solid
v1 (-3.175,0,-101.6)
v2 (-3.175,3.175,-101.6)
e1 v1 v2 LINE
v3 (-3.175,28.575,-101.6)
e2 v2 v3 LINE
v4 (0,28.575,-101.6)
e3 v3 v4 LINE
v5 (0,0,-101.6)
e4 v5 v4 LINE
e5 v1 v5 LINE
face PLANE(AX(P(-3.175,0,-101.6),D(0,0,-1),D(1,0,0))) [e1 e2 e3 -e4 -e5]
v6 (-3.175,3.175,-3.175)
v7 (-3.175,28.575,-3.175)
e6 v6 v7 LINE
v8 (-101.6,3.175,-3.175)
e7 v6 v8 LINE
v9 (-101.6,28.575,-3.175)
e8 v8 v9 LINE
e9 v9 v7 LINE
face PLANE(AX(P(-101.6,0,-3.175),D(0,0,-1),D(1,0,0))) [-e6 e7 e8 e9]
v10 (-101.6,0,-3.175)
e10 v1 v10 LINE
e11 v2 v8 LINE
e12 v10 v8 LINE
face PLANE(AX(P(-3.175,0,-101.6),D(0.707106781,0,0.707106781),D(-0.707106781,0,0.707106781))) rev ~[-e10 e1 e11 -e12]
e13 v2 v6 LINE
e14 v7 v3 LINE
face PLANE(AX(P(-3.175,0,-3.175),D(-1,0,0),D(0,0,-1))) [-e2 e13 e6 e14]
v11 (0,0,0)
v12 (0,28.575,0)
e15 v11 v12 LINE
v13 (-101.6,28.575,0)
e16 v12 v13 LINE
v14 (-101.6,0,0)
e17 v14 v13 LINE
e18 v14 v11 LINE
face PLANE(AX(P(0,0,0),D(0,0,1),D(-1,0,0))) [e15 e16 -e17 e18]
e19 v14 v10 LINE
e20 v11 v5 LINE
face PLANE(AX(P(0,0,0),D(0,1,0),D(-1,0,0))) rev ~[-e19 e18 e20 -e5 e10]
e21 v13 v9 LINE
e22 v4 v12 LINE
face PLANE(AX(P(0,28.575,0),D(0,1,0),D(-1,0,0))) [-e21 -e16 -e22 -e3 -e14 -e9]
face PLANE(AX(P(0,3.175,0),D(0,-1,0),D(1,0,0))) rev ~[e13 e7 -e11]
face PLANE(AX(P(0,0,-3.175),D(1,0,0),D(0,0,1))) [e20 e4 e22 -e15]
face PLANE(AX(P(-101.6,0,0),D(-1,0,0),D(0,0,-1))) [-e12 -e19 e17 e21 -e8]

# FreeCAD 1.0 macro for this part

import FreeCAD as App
import Part
import Sketcher
Q = App.Units.Quantity


def add_polygon(sketch, points):
    """Adds a closed chain of lines whose ends are joined by coincident constraints."""
    first, n = sketch.GeometryCount, len(points)
    for a, b in zip(points, points[1:] + points[:1]):
        sketch.addGeometry(Part.LineSegment(App.Vector(*a, 0), App.Vector(*b, 0)), False)
    for i in range(n):
        sketch.addConstraint(Sketcher.Constraint("Coincident", first + i, 2, first + (i + 1) % n, 1))

doc = App.newDocument("Part")
params = doc.addObject("Spreadsheet::Sheet", "Params")
for row, (alias, value) in enumerate([
    ("sketch1_width", "4 in"),
    ("sketch1_width2", "0.125 in"),
    ("pad1_length", "1.125 in"),
    ("sketch2_width", "3.875 in"),
    ("pad2_length", "0.125 in"),
], start=1):
    params.set(f"A{row}", alias)
    params.set(f"B{row}", "=" + value)
    params.setAlias(f"B{row}", alias)

body = doc.addObject("PartDesign::Body", "Body")

# Sketch on XZ plane
sketch1 = body.newObject("Sketcher::SketchObject", "Sketch")
sketch1.AttachmentSupport = (doc.getObject("XZ_Plane"), [""])
sketch1.MapMode = "FlatFace"
add_polygon(sketch1, [(-101.6, 0), (0, 0), (0, -101.6), (-3.2, -101.6), (-3.2, -3.2), (-101.6, -3.2)])  # lines 0-5
sketch1.addConstraint([
    Sketcher.Constraint("Horizontal", 0),
    Sketcher.Constraint("Vertical", 1),
    Sketcher.Constraint("Horizontal", 2),
    Sketcher.Constraint("Vertical", 3),
    Sketcher.Constraint("Horizontal", 4),
    Sketcher.Constraint("Vertical", 5),
    Sketcher.Constraint("Coincident", 0, 2, -1, 1),
    Sketcher.Constraint("Equal", 0, 1),
    Sketcher.Constraint("Equal", 4, 3),
    Sketcher.Constraint("DistanceX", 0, 1, 0, 2, Q("4 in")),
    Sketcher.Constraint("DistanceX", 2, 2, 2, 1, Q("0.125 in")),
])
sketch1.setExpression("Constraints[15]", "Params.sketch1_width")
sketch1.setExpression("Constraints[16]", "Params.sketch1_width2")
pad1 = body.newObject("PartDesign::Pad", "Pad")
pad1.Profile = sketch1
pad1.setExpression("Length", "Params.pad1_length")
pad1.Reversed = True

# Sketch on XZ plane
sketch2 = body.newObject("Sketcher::SketchObject", "Sketch001")
sketch2.AttachmentSupport = (doc.getObject("XZ_Plane"), [""])
sketch2.MapMode = "FlatFace"
add_polygon(sketch2, [(-102, -3), (-3, -102), (-3, -3)])  # lines 0-2
sketch2.addConstraint([
    Sketcher.Constraint("Vertical", 1),
    Sketcher.Constraint("Horizontal", 2),
    Sketcher.Constraint("Equal", 2, 1),
    Sketcher.Constraint("DistanceY", 0, 2, -1, 1, Q("4 in")),
    Sketcher.Constraint("DistanceX", 2, 2, -1, 1, Q("4 in")),
    Sketcher.Constraint("DistanceX", 2, 2, 2, 1, Q("3.875 in")),
])
sketch2.setExpression("Constraints[8]", "Params.sketch2_width")
pad2 = body.newObject("PartDesign::Pad", "Pad001")
pad2.Profile = sketch2
pad2.setExpression("Length", "Params.pad2_length")
pad2.Reversed = True

doc.recompute()
